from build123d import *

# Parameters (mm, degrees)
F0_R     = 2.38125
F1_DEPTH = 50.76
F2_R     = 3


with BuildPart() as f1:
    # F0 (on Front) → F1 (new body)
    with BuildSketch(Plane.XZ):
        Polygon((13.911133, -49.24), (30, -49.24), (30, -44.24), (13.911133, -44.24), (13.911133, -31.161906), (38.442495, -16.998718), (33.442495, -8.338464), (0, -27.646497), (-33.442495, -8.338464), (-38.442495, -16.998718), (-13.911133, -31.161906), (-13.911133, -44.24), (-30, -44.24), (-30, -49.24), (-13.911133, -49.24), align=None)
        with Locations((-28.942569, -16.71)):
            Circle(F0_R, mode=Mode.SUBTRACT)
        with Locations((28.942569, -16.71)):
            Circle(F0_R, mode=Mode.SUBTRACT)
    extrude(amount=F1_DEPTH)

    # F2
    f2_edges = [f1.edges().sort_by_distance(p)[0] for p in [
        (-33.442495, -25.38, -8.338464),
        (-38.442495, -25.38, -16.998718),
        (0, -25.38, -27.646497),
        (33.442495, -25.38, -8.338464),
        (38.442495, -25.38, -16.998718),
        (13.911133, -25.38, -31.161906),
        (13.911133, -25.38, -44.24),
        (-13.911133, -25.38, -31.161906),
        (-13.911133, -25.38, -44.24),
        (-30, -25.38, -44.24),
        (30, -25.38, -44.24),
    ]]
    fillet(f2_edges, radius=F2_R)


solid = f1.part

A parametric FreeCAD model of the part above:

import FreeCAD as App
import Part
import Sketcher
from FreeCAD import Vector
Q = App.Units.Quantity


def edges_at(feature, points):
    """Names of the edges that pass closest to the given points."""
    edges = feature.Shape.Edges
    near = lambda p: min(range(len(edges)), key=lambda i: edges[i].distToShape(Part.Vertex(*p))[0])
    return sorted({f"Edge{near(p) + 1}" for p in points})


def add_polygon(sketch, points):
    """Adds a closed chain of lines whose ends are joined by coincident constraints."""
    first, n = sketch.GeometryCount, len(points)
    for a, b in zip(points, points[1:] + points[:1]):
        sketch.addGeometry(Part.LineSegment(App.Vector(*a, 0), App.Vector(*b, 0)), False)
    for i in range(n):
        sketch.addConstraint(Sketcher.Constraint("Coincident", first + i, 2, first + (i + 1) % n, 1))

doc = App.newDocument("Part")
params = doc.addObject("Spreadsheet::Sheet", "Params")
for row, (alias, value) in enumerate([
    ("sketch1_width", "60 mm"),
    ("sketch1_height", "5 mm"),
    ("sketch1_length", "10 mm"),
    ("pad1_length", "50.76 mm"),
    ("fillet_radius", "3 mm"),
], start=1):
    params.set(f"A{row}", alias)
    params.set(f"B{row}", "=" + value)
    params.setAlias(f"B{row}", alias)

body = doc.addObject("PartDesign::Body", "Body")

sketch1 = body.newObject("Sketcher::SketchObject", "Sketch")
sketch1.AttachmentSupport = (doc.getObject("XZ_Plane"), [""])
sketch1.MapMode = "FlatFace"
add_polygon(sketch1, [(30, -49.2), (30, -44.2), (13.9, -44.2), (13.9, -31.2), (38.4, -17), (33.4, -8.3), (0, -27.6), (-33.4, -8.3), (-38.4, -17), (-13.9, -31.2), (-13.9, -44.2), (-30, -44.2), (-30, -49.2)])
sketch1.addGeometry(Part.Circle(Vector(-28.9, -16.7, 0), Vector(0, 0, 1), 2.4), False)
sketch1.addGeometry(Part.Circle(Vector(28.9, -16.7, 0), Vector(0, 0, 1), 2.4), False)
sketch1.addConstraint([
    Sketcher.Constraint("Vertical", 0),
    Sketcher.Constraint("Horizontal", 1),
    Sketcher.Constraint("Vertical", 2),
    Sketcher.Constraint("Vertical", 9),
    Sketcher.Constraint("Horizontal", 10),
    Sketcher.Constraint("Vertical", 11),
    Sketcher.Constraint("Horizontal", 12),
    Sketcher.Constraint("Equal", 13, 14),
    Sketcher.Constraint("Symmetric", 13, 3, 14, 3, -2),
    Sketcher.Constraint("Symmetric", 4, 2, 6, 2, -2),
    Sketcher.Constraint("Symmetric", 3, 2, 7, 2, -2),
    Sketcher.Constraint("Symmetric", 2, 2, 8, 2, -2),
    Sketcher.Constraint("Symmetric", 0, 2, 10, 2, -2),
    Sketcher.Constraint("PointOnObject", 5, 2, -2),
    Sketcher.Constraint("Perpendicular", 3, 4),
    Sketcher.Constraint("Perpendicular", 4, 5),
    Sketcher.Constraint("DistanceX", 12, 1, 12, 2, Q("60 mm")),
    Sketcher.Constraint("DistanceY", 0, 1, 0, 2, Q("5 mm")),
    Sketcher.Constraint("Angle", 3, Q("29.999999 deg")),
    Sketcher.Constraint("Distance", 4, Q("10 mm")),
    Sketcher.Constraint("Diameter", 13, Q("4.7625 mm")),
    Sketcher.Constraint("DistanceY", 13, 3, -1, 1, Q("16.71 mm")),
    Sketcher.Constraint("DistanceY", 0, 2, -1, 1, Q("44.24 mm")),
    Sketcher.Constraint("DistanceX", 13, 3, 1, 2, Q("42.853702 mm")),
    Sketcher.Constraint("DistanceX", 1, 2, 1, 1, Q("16.088867 mm")),
    Sketcher.Constraint("DistanceY", 2, 1, 2, 2, Q("13.078094 mm")),
    Sketcher.Constraint("DistanceY", 3, 2, -1, 1, Q("16.998718 mm")),
])
sketch1.setExpression("Constraints[29]", "Params.sketch1_width")
sketch1.setExpression("Constraints[30]", "Params.sketch1_height")
sketch1.setExpression("Constraints[32]", "Params.sketch1_length")
pad1 = body.newObject("PartDesign::Pad", "Pad")
pad1.Profile = sketch1
pad1.setExpression("Length", "Params.pad1_length")
doc.recompute()

fillet = body.newObject("PartDesign::Fillet", "Fillet")
fillet.Base = (pad1, edges_at(pad1, [
    (-33.442, -25.38, -8.338),
    (-38.442, -25.38, -16.999),
    (0, -25.38, -27.646),
    (33.442, -25.38, -8.338),
    (38.442, -25.38, -16.999),
    (13.911, -25.38, -31.162),
    (13.911, -25.38, -44.24),
    (-13.911, -25.38, -31.162),
    (-13.911, -25.38, -44.24),
    (-30, -25.38, -44.24),
    (30, -25.38, -44.24),
]))
fillet.setExpression("Radius", "Params.fillet_radius")

doc.recompute()
